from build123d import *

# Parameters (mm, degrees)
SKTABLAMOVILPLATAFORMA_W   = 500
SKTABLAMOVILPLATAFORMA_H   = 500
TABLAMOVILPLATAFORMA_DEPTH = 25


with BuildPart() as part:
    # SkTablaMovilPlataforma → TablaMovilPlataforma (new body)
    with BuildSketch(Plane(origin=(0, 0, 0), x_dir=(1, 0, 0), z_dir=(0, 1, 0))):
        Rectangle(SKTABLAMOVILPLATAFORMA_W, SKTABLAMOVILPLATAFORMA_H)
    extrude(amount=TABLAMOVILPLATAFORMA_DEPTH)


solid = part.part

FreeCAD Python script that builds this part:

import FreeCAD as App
import Part
import Sketcher
Q = App.Units.Quantity


def add_polygon(sketch, points):
    """Adds a closed chain of lines whose ends are joined by coincident constraints."""
    first, n = sketch.GeometryCount, len(points)
    for a, b in zip(points, points[1:] + points[:1]):
        sketch.addGeometry(Part.LineSegment(App.Vector(*a, 0), App.Vector(*b, 0)), False)
    for i in range(n):
        sketch.addConstraint(Sketcher.Constraint("Coincident", first + i, 2, first + (i + 1) % n, 1))

doc = App.newDocument("Part")
body = doc.addObject("PartDesign::Body", "Body")

# Sketch on XZ plane
sketch1 = body.newObject("Sketcher::SketchObject", "Sketch")
sketch1.AttachmentSupport = (doc.getObject("XZ_Plane"), [""])
sketch1.MapMode = "FlatFace"
add_polygon(sketch1, [(-250, -250), (-250, 250), (250, 250), (250, -250)])  # lines 0-3
sketch1.addConstraint([
    Sketcher.Constraint("Vertical", 0),
    Sketcher.Constraint("Horizontal", 1),
    Sketcher.Constraint("Vertical", 2),
    Sketcher.Constraint("Horizontal", 3),
    Sketcher.Constraint("Symmetric", 0, 2, 2, 2, -1, 1),
    Sketcher.Constraint("Equal", 3, 0),
    Sketcher.Constraint("DistanceX", 1, 1, 1, 2, Q("500 mm")),
])
pad1 = body.newObject("PartDesign::Pad", "Pad")
pad1.Profile = sketch1
pad1.Length = 25
pad1.Reversed = True

doc.recompute()
